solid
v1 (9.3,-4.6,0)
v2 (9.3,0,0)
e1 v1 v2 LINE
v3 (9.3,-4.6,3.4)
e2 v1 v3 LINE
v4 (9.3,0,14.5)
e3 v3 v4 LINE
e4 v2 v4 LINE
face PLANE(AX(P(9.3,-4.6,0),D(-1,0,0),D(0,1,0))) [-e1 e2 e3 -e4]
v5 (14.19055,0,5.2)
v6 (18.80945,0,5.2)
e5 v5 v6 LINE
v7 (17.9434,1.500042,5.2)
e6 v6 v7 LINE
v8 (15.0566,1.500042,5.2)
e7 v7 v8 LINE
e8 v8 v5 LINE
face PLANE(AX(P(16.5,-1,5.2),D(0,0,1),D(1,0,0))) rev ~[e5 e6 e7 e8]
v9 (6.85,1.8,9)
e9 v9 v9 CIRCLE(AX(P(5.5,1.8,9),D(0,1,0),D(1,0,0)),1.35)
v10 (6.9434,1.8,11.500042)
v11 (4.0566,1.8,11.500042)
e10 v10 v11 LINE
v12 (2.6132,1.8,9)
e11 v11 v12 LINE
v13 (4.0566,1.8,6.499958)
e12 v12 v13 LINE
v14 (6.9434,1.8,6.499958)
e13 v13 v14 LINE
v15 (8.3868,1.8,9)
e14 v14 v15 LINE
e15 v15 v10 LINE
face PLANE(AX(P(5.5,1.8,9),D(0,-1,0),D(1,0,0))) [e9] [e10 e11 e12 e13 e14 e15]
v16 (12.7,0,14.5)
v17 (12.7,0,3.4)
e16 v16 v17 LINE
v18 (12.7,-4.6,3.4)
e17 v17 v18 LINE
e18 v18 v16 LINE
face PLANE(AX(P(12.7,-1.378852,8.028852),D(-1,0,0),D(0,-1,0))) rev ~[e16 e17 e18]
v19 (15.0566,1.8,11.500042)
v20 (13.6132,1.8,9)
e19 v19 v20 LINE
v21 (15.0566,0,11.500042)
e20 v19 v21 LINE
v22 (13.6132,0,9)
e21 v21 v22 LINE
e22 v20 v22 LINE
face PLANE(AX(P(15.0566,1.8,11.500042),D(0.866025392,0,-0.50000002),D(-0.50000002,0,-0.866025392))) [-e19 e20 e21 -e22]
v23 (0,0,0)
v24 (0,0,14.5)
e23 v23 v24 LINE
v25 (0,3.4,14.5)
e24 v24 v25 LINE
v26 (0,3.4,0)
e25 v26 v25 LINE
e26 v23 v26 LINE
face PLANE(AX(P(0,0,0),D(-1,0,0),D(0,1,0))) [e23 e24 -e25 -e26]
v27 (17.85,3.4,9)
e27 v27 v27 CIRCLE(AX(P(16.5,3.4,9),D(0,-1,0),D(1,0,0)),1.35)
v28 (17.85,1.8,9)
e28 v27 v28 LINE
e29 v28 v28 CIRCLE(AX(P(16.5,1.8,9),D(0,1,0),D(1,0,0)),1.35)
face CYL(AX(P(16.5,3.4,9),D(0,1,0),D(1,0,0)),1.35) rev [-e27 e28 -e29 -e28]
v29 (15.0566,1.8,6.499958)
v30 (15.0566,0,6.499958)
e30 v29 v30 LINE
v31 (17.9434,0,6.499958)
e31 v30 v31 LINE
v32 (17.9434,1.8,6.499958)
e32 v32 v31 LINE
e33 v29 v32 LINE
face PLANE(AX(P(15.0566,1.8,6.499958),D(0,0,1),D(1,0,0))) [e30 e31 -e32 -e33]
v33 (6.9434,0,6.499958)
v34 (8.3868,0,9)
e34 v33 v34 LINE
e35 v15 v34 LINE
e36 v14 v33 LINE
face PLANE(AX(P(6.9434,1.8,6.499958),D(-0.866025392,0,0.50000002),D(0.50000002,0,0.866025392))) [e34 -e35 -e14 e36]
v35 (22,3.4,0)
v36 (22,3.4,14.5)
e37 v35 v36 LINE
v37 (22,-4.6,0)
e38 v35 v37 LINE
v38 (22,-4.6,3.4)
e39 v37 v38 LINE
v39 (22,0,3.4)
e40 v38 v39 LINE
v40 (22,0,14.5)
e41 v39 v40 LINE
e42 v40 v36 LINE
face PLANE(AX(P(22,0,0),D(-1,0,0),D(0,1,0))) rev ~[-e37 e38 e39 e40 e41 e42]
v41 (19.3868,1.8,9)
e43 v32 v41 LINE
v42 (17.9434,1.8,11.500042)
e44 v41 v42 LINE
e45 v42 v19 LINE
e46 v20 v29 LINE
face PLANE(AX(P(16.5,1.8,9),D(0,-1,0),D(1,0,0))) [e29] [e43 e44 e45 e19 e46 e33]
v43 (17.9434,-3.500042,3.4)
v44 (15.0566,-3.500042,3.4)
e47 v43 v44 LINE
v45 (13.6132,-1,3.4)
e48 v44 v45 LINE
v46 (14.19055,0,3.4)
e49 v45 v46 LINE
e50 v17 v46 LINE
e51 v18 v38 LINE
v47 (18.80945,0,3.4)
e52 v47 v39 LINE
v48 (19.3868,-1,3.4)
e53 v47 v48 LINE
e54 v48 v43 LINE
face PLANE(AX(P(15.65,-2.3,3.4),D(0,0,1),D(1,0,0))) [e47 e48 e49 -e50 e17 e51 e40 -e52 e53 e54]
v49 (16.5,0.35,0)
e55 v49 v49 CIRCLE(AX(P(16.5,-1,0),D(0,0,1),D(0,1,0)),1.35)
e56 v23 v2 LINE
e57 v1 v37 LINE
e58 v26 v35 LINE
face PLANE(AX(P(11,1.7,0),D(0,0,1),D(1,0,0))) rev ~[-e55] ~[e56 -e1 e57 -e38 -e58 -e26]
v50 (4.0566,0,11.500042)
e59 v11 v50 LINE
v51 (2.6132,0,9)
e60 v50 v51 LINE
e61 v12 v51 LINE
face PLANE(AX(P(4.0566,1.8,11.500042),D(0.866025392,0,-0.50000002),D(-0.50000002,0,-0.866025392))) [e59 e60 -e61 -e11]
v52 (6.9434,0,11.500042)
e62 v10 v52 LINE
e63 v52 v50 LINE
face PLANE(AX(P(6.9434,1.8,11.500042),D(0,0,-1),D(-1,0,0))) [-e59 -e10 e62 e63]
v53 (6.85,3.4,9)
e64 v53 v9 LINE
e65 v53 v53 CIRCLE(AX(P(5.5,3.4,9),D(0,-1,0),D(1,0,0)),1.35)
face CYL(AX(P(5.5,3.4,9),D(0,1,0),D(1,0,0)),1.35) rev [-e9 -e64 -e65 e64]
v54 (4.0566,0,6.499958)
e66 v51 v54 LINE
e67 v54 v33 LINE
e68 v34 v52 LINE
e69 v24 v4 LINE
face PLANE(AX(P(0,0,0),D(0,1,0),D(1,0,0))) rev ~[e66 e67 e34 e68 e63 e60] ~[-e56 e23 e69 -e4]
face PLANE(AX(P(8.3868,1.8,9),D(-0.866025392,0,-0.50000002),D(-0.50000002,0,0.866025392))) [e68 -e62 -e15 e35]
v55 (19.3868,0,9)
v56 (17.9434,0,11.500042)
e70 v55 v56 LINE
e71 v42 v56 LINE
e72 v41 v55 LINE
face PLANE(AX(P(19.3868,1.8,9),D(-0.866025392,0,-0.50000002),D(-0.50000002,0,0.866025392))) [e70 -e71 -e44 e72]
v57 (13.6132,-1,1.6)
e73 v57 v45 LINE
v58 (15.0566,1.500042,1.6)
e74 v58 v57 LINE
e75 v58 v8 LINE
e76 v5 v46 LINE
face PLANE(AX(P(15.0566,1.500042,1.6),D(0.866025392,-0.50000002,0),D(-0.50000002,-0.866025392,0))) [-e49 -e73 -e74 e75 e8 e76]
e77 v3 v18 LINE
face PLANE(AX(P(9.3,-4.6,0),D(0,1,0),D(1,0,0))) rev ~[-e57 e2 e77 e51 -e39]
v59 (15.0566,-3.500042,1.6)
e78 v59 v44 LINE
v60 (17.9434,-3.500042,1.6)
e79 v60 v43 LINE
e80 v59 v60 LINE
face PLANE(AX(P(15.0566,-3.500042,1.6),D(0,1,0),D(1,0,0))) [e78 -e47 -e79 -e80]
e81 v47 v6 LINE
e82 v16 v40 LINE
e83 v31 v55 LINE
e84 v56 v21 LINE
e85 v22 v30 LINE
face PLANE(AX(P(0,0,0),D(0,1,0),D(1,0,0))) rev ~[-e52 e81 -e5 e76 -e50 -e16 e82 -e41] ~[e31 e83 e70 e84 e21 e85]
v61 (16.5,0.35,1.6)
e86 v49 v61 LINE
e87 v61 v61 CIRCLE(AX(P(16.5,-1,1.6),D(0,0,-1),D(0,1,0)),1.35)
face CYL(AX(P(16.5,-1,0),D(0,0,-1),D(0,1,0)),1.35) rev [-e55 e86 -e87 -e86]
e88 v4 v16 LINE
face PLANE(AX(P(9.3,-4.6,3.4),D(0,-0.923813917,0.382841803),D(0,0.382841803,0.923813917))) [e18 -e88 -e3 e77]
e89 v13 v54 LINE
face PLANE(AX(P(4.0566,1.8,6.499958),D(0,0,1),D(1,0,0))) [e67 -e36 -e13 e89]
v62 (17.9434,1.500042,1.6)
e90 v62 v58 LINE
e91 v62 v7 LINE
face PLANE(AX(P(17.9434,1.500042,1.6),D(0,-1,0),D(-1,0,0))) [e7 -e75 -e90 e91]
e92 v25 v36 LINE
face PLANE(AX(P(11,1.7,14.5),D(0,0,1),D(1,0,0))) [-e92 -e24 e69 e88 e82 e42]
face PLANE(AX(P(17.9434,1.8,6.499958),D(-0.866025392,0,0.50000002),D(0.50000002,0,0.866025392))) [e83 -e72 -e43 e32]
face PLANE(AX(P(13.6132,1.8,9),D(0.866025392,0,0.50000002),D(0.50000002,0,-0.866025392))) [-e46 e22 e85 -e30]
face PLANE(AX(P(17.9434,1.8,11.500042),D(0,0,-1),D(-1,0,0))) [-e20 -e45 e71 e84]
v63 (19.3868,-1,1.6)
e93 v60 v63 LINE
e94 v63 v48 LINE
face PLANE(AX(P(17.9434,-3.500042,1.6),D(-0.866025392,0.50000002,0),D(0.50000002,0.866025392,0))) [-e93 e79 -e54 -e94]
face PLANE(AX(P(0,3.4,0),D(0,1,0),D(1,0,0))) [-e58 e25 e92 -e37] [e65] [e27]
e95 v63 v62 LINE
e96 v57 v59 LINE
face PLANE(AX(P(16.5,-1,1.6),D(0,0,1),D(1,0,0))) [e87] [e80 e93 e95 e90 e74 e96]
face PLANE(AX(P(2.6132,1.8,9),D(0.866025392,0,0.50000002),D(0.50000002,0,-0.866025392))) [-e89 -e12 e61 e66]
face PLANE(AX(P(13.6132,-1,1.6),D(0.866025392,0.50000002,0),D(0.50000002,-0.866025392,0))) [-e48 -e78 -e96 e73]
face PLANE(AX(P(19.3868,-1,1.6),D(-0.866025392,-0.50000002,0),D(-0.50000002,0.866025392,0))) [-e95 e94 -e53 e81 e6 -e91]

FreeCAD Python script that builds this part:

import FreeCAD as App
import Part
import Sketcher
from FreeCAD import Vector
Q = App.Units.Quantity

doc = App.newDocument("Part")
body = doc.addObject("PartDesign::Body", "Body")

sketch1 = doc.addObject("Sketcher::SketchObject", "Sketch")
body.addObject(sketch1)
sketch1.AttachmentSupport = (doc.XY_Plane, [""])
sketch1.MapMode = "FlatFace"
sketch1.AttachmentOffset = App.Placement(Vector(0, 0, 1.6), App.Rotation())
sketch1.addGeometry([
    Part.LineSegment(Vector(19.4, -1, 0), Vector(17.9, 1.5, 0)),
    Part.LineSegment(Vector(17.9, 1.5, 0), Vector(15.1, 1.5, 0)),
    Part.LineSegment(Vector(15.1, 1.5, 0), Vector(13.6, -1, 0)),
    Part.LineSegment(Vector(13.6, -1, 0), Vector(15.1, -3.5, 0)),
    Part.LineSegment(Vector(15.1, -3.5, 0), Vector(17.9, -3.5, 0)),
    Part.LineSegment(Vector(17.9, -3.5, 0), Vector(19.4, -1, 0)),
], False)
sketch1.addConstraint([
    Sketcher.Constraint("Coincident", 0, 2, 1, 1),
    Sketcher.Constraint("Coincident", 1, 2, 2, 1),
    Sketcher.Constraint("Coincident", 2, 2, 3, 1),
    Sketcher.Constraint("Coincident", 3, 2, 4, 1),
    Sketcher.Constraint("Coincident", 4, 2, 5, 1),
    Sketcher.Constraint("Coincident", 5, 2, 0, 1),
    Sketcher.Constraint("Horizontal", 1),
    Sketcher.Constraint("Horizontal", 4),
    Sketcher.Constraint("Parallel", 0, 3),
    Sketcher.Constraint("Parallel", 2, 5),
    Sketcher.Constraint("Horizontal", 2, 2, 5, 2),
    Sketcher.Constraint("Vertical", 1, 2, 3, 2),
    Sketcher.Constraint("Vertical", 0, 2, 4, 2),
    Sketcher.Constraint("Angle", 0, Q("120.000001 deg")),
    Sketcher.Constraint("DistanceY", 2, 2, -1, 1, 1.0),
    Sketcher.Constraint("DistanceX", 1, 2, 1, 1, 2.8868),
    Sketcher.Constraint("Distance", 0, 2.8868),
    Sketcher.Constraint("DistanceX", -1, 1, 0, 2, 17.9434),
])
pad1 = doc.addObject("PartDesign::Pad", "Pad")
body.addObject(pad1)
pad1.Profile = sketch1
pad1.Length = 3.6
body2 = doc.addObject("PartDesign::Body", "Body001")

sketch2 = doc.addObject("Sketcher::SketchObject", "Sketch001")
body2.addObject(sketch2)
sketch2.AttachmentSupport = (doc.getObject("XY_Plane001"), [""])
sketch2.MapMode = "FlatFace"
sketch2.addGeometry(Part.Circle(Vector(16.5, -1, 0), Vector(0, 0, 1), 1.4), False)
sketch2.addConstraint([
    Sketcher.Constraint("Diameter", 0, 2.7),
    Sketcher.Constraint("DistanceY", 0, 3, -1, 1, 1.0),
    Sketcher.Constraint("DistanceX", -1, 1, 0, 3, 16.5),
])
pad2 = doc.addObject("PartDesign::Pad", "Pad001")
body2.addObject(pad2)
pad2.Profile = sketch2
pad2.Length = 3.4
doc.recompute()

boolean = doc.addObject("PartDesign::Boolean", "Boolean")
body2.addObject(boolean)
boolean.Type = "Fuse"
boolean.addObjects([body])
body3 = doc.addObject("PartDesign::Body", "Body002")

sketch3 = doc.addObject("Sketcher::SketchObject", "Sketch002")
body3.addObject(sketch3)
sketch3.AttachmentSupport = (doc.getObject("XZ_Plane002"), [""])
sketch3.MapMode = "FlatFace"
sketch3.AttachmentOffset = App.Placement(Vector(0, 0, -1.8), App.Rotation())
sketch3.addGeometry([
    Part.LineSegment(Vector(19.4, 9, 0), Vector(17.9, 11.5, 0)),
    Part.LineSegment(Vector(17.9, 11.5, 0), Vector(15.1, 11.5, 0)),
    Part.LineSegment(Vector(15.1, 11.5, 0), Vector(13.6, 9, 0)),
    Part.LineSegment(Vector(13.6, 9, 0), Vector(15.1, 6.5, 0)),
    Part.LineSegment(Vector(15.1, 6.5, 0), Vector(17.9, 6.5, 0)),
    Part.LineSegment(Vector(17.9, 6.5, 0), Vector(19.4, 9, 0)),
], False)
sketch3.addConstraint([
    Sketcher.Constraint("Coincident", 0, 2, 1, 1),
    Sketcher.Constraint("Coincident", 1, 2, 2, 1),
    Sketcher.Constraint("Coincident", 2, 2, 3, 1),
    Sketcher.Constraint("Coincident", 3, 2, 4, 1),
    Sketcher.Constraint("Coincident", 4, 2, 5, 1),
    Sketcher.Constraint("Coincident", 5, 2, 0, 1),
    Sketcher.Constraint("Horizontal", 1),
    Sketcher.Constraint("Horizontal", 4),
    Sketcher.Constraint("Parallel", 0, 3),
    Sketcher.Constraint("Parallel", 2, 5),
    Sketcher.Constraint("Horizontal", 2, 2, 5, 2),
    Sketcher.Constraint("Vertical", 1, 2, 3, 2),
    Sketcher.Constraint("Vertical", 0, 2, 4, 2),
    Sketcher.Constraint("Angle", 0, Q("120.000001 deg")),
    Sketcher.Constraint("DistanceY", -1, 1, 2, 2, 9.0),
    Sketcher.Constraint("DistanceX", 1, 2, 1, 1, 2.8868),
    Sketcher.Constraint("Distance", 0, 2.8868),
    Sketcher.Constraint("DistanceX", -1, 1, 0, 2, 17.9434),
])
pad3 = doc.addObject("PartDesign::Pad", "Pad002")
body3.addObject(pad3)
pad3.Profile = sketch3
pad3.Length = 1.8
body4 = doc.addObject("PartDesign::Body", "Body003")

sketch4 = doc.addObject("Sketcher::SketchObject", "Sketch003")
body4.addObject(sketch4)
sketch4.AttachmentSupport = (doc.getObject("XZ_Plane003"), [""])
sketch4.MapMode = "FlatFace"
sketch4.AttachmentOffset = App.Placement(Vector(0, 0, -3.4), App.Rotation())
sketch4.addGeometry(Part.Circle(Vector(16.5, 9, 0), Vector(0, 0, 1), 1.4), False)
sketch4.addConstraint([
    Sketcher.Constraint("Diameter", 0, 2.7),
    Sketcher.Constraint("DistanceY", -1, 1, 0, 3, 9.0),
    Sketcher.Constraint("DistanceX", -1, 1, 0, 3, 16.5),
])
pad4 = doc.addObject("PartDesign::Pad", "Pad003")
body4.addObject(pad4)
pad4.Profile = sketch4
pad4.Length = 3.4
doc.recompute()

boolean2 = doc.addObject("PartDesign::Boolean", "Boolean001")
body4.addObject(boolean2)
boolean2.Type = "Fuse"
boolean2.addObjects([body3])
body5 = doc.addObject("PartDesign::Body", "Body004")

sketch5 = doc.addObject("Sketcher::SketchObject", "Sketch004")
body5.addObject(sketch5)
sketch5.AttachmentSupport = (doc.getObject("XZ_Plane004"), [""])
sketch5.MapMode = "FlatFace"
sketch5.AttachmentOffset = App.Placement(Vector(0, 0, -1.8), App.Rotation())
sketch5.addGeometry([
    Part.LineSegment(Vector(8.4, 9, 0), Vector(6.9, 11.5, 0)),
    Part.LineSegment(Vector(6.9, 11.5, 0), Vector(4.1, 11.5, 0)),
    Part.LineSegment(Vector(4.1, 11.5, 0), Vector(2.6, 9, 0)),
    Part.LineSegment(Vector(2.6, 9, 0), Vector(4.1, 6.5, 0)),
    Part.LineSegment(Vector(4.1, 6.5, 0), Vector(6.9, 6.5, 0)),
    Part.LineSegment(Vector(6.9, 6.5, 0), Vector(8.4, 9, 0)),
], False)
sketch5.addConstraint([
    Sketcher.Constraint("Coincident", 0, 2, 1, 1),
    Sketcher.Constraint("Coincident", 1, 2, 2, 1),
    Sketcher.Constraint("Coincident", 2, 2, 3, 1),
    Sketcher.Constraint("Coincident", 3, 2, 4, 1),
    Sketcher.Constraint("Coincident", 4, 2, 5, 1),
    Sketcher.Constraint("Coincident", 5, 2, 0, 1),
    Sketcher.Constraint("Horizontal", 1),
    Sketcher.Constraint("Horizontal", 4),
    Sketcher.Constraint("Parallel", 0, 3),
    Sketcher.Constraint("Parallel", 2, 5),
    Sketcher.Constraint("Horizontal", 2, 2, 5, 2),
    Sketcher.Constraint("Vertical", 1, 2, 3, 2),
    Sketcher.Constraint("Vertical", 0, 2, 4, 2),
    Sketcher.Constraint("Angle", 0, Q("120.000001 deg")),
    Sketcher.Constraint("DistanceY", -1, 1, 2, 2, 9.0),
    Sketcher.Constraint("DistanceX", 1, 2, 1, 1, 2.8868),
    Sketcher.Constraint("Distance", 0, 2.8868),
    Sketcher.Constraint("DistanceX", -1, 1, 0, 2, 6.9434),
])
pad5 = doc.addObject("PartDesign::Pad", "Pad004")
body5.addObject(pad5)
pad5.Profile = sketch5
pad5.Length = 1.8
body6 = doc.addObject("PartDesign::Body", "Body005")

sketch6 = doc.addObject("Sketcher::SketchObject", "Sketch005")
body6.addObject(sketch6)
sketch6.AttachmentSupport = (doc.getObject("XZ_Plane005"), [""])
sketch6.MapMode = "FlatFace"
sketch6.AttachmentOffset = App.Placement(Vector(0, 0, -3.4), App.Rotation())
sketch6.addGeometry(Part.Circle(Vector(5.5, 9, 0), Vector(0, 0, 1), 1.4), False)
sketch6.addConstraint([
    Sketcher.Constraint("Diameter", 0, 2.7),
    Sketcher.Constraint("DistanceY", -1, 1, 0, 3, 9.0),
    Sketcher.Constraint("DistanceX", -1, 1, 0, 3, 5.5),
])
pad6 = doc.addObject("PartDesign::Pad", "Pad005")
body6.addObject(pad6)
pad6.Profile = sketch6
pad6.Length = 3.4
doc.recompute()

boolean3 = doc.addObject("PartDesign::Boolean", "Boolean002")
body6.addObject(boolean3)
boolean3.Type = "Fuse"
boolean3.addObjects([body5])
body7 = doc.addObject("PartDesign::Body", "Body006")

sketch7 = doc.addObject("Sketcher::SketchObject", "Sketch006")
body7.addObject(sketch7)
sketch7.AttachmentSupport = (doc.getObject("XY_Plane006"), [""])
sketch7.MapMode = "FlatFace"
sketch7.addGeometry([
    Part.LineSegment(Vector(0, 3.4, 0), Vector(0, 0, 0)),
    Part.LineSegment(Vector(0, 0, 0), Vector(22, 0, 0)),
    Part.LineSegment(Vector(22, 0, 0), Vector(22, 3.4, 0)),
    Part.LineSegment(Vector(22, 3.4, 0), Vector(0, 3.4, 0)),
], False)
sketch7.addConstraint([
    Sketcher.Constraint("Coincident", 0, 2, 1, 1),
    Sketcher.Constraint("Coincident", 1, 2, 2, 1),
    Sketcher.Constraint("Coincident", 2, 2, 3, 1),
    Sketcher.Constraint("Coincident", 3, 2, 0, 1),
    Sketcher.Constraint("Vertical", 0),
    Sketcher.Constraint("Horizontal", 1),
    Sketcher.Constraint("Vertical", 2),
    Sketcher.Constraint("Horizontal", 3),
    Sketcher.Constraint("Coincident", 0, 2, -1, 1),
    Sketcher.Constraint("DistanceX", 1, 1, 1, 2, 22.0),
    Sketcher.Constraint("DistanceY", 0, 2, 0, 1, 3.4),
])
pad7 = doc.addObject("PartDesign::Pad", "Pad006")
body7.addObject(pad7)
pad7.Profile = sketch7
pad7.Length = 14.5
doc.recompute()

boolean4 = doc.addObject("PartDesign::Boolean", "Boolean003")
body7.addObject(boolean4)
boolean4.Type = "Cut"
boolean4.addObjects([body6])
doc.recompute()

boolean5 = doc.addObject("PartDesign::Boolean", "Boolean004")
body7.addObject(boolean5)
boolean5.Type = "Cut"
boolean5.addObjects([body4])
body8 = doc.addObject("PartDesign::Body", "Body007")

sketch8 = doc.addObject("Sketcher::SketchObject", "Sketch007")
body8.addObject(sketch8)
sketch8.AttachmentSupport = (doc.getObject("XY_Plane007"), [""])
sketch8.MapMode = "FlatFace"
sketch8.addGeometry([
    Part.LineSegment(Vector(9.3, 0, 0), Vector(9.3, -4.6, 0)),
    Part.LineSegment(Vector(9.3, -4.6, 0), Vector(22, -4.6, 0)),
    Part.LineSegment(Vector(22, -4.6, 0), Vector(22, 0, 0)),
    Part.LineSegment(Vector(22, 0, 0), Vector(9.3, 0, 0)),
], False)
sketch8.addConstraint([
    Sketcher.Constraint("Coincident", 0, 2, 1, 1),
    Sketcher.Constraint("Coincident", 1, 2, 2, 1),
    Sketcher.Constraint("Coincident", 2, 2, 3, 1),
    Sketcher.Constraint("Coincident", 3, 2, 0, 1),
    Sketcher.Constraint("Vertical", 0),
    Sketcher.Constraint("Horizontal", 1),
    Sketcher.Constraint("Vertical", 2),
    Sketcher.Constraint("Horizontal", 3),
    Sketcher.Constraint("PointOnObject", 2, 2, -1),
    Sketcher.Constraint("DistanceX", 1, 1, 1, 2, 12.7),
    Sketcher.Constraint("DistanceY", 0, 2, 0, 1, 4.6),
    Sketcher.Constraint("DistanceX", -1, 1, 1, 2, 22.0),
])
pad8 = doc.addObject("PartDesign::Pad", "Pad007")
body8.addObject(pad8)
pad8.Profile = sketch8
pad8.Length = 3.4
doc.recompute()

boolean6 = doc.addObject("PartDesign::Boolean", "Boolean005")
body8.addObject(boolean6)
boolean6.Type = "Fuse"
boolean6.addObjects([body7])
doc.recompute()

boolean7 = doc.addObject("PartDesign::Boolean", "Boolean006")
body8.addObject(boolean7)
boolean7.Type = "Cut"
boolean7.addObjects([body2])
body9 = doc.addObject("PartDesign::Body", "Body008")

sketch9 = doc.addObject("Sketcher::SketchObject", "Sketch008")
body9.addObject(sketch9)
sketch9.AttachmentSupport = (doc.getObject("YZ_Plane008"), [""])
sketch9.MapMode = "FlatFace"
sketch9.addGeometry([
    Part.LineSegment(Vector(0, 3.4, 0), Vector(0, 14.5, 0)),
    Part.LineSegment(Vector(0, 14.5, 0), Vector(-4.6, 3.4, 0)),
    Part.LineSegment(Vector(-4.6, 3.4, 0), Vector(0, 3.4, 0)),
], False)
sketch9.addConstraint([
    Sketcher.Constraint("Coincident", 0, 2, 1, 1),
    Sketcher.Constraint("Coincident", 1, 2, 2, 1),
    Sketcher.Constraint("Coincident", 2, 2, 0, 1),
    Sketcher.Constraint("Vertical", 0),
    Sketcher.Constraint("Horizontal", 2),
    Sketcher.Constraint("PointOnObject", 0, 2, -2),
    Sketcher.Constraint("DistanceX", 2, 1, 2, 2, 4.6),
    Sketcher.Constraint("DistanceY", 0, 1, 0, 2, 11.1),
    Sketcher.Constraint("DistanceY", -1, 1, 0, 2, 14.5),
])
pad9 = doc.addObject("PartDesign::Pad", "Pad008")
body9.addObject(pad9)
pad9.Profile = sketch9
pad9.Length = 3.4
body10 = doc.addObject("PartDesign::Body", "Body009")
doc.recompute()

body9.Placement = App.Placement(Vector(9.3, 0, 0), App.Rotation(Vector(0, 0, 1), 0))
boolean8 = doc.addObject("PartDesign::Boolean", "Boolean007")
body10.addObject(boolean8)
boolean8.Type = "Fuse"
boolean8.addObjects([body9])
doc.recompute()

boolean9 = doc.addObject("PartDesign::Boolean", "Boolean008")
body10.addObject(boolean9)
boolean9.Type = "Fuse"
boolean9.addObjects([body8])

doc.recompute()
